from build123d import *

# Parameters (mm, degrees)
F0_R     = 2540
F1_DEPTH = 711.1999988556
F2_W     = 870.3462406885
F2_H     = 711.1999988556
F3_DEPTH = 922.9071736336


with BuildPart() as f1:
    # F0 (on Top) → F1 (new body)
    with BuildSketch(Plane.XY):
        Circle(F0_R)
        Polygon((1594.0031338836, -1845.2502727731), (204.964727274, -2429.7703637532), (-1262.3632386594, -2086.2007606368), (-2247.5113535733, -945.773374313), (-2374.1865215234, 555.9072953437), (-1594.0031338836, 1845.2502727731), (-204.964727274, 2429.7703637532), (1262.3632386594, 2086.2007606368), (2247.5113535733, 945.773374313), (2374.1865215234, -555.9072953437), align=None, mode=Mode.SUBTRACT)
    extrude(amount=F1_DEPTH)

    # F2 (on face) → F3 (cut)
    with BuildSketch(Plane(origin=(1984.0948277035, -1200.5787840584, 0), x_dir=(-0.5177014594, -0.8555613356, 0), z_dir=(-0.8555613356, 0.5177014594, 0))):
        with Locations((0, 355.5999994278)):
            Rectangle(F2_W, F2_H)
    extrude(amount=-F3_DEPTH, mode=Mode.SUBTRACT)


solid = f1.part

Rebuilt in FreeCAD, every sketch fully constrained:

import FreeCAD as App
import Part
import Sketcher
Q = App.Units.Quantity


def add_polygon(sketch, points):
    """Adds a closed chain of lines whose ends are joined by coincident constraints."""
    first, n = sketch.GeometryCount, len(points)
    for a, b in zip(points, points[1:] + points[:1]):
        sketch.addGeometry(Part.LineSegment(App.Vector(*a, 0), App.Vector(*b, 0)), False)
    for i in range(n):
        sketch.addConstraint(Sketcher.Constraint("Coincident", first + i, 2, first + (i + 1) % n, 1))

doc = App.newDocument("Part")
body = doc.addObject("PartDesign::Body", "Body")

sketch1 = body.newObject("Sketcher::SketchObject", "Sketch")
sketch1.AttachmentSupport = (doc.getObject("XY_Plane"), [""])
sketch1.MapMode = "FlatFace"
sketch1.addGeometry(Part.Circle(App.Vector(0, 0, 0), App.Vector(0, 0, 1), 2540), False)
add_polygon(sketch1, [(2374, -556), (1594, -1845), (205, -2430), (-1262, -2086), (-2248, -946), (-2374, 556), (-1594, 1845), (-205, 2430), (1262, 2086), (2248, 946)])
sketch1.addConstraint([
    Sketcher.Constraint("Coincident", 0, 3, -1, 1),
    Sketcher.Constraint("Symmetric", 1, 2, 6, 2, -1, 1),
    Sketcher.Constraint("Symmetric", 2, 2, 7, 2, -1, 1),
    Sketcher.Constraint("Symmetric", 3, 2, 8, 2, -1, 1),
    Sketcher.Constraint("Symmetric", 4, 2, 9, 2, -1, 1),
    Sketcher.Constraint("Symmetric", 5, 2, 10, 2, -1, 1),
    Sketcher.Constraint("Equal", 1, 2),
    Sketcher.Constraint("Equal", 2, 3),
    Sketcher.Constraint("Equal", 3, 4),
    Sketcher.Constraint("Equal", 4, 5),
    Sketcher.Constraint("Diameter", 0, Q("200 in")),
    Sketcher.Constraint("DistanceY", 1, 2, 4, 2, 899.476898),
    Sketcher.Constraint("Distance", 1, 1507.014078),
    Sketcher.Constraint("DistanceX", 3, 2, -1, 1, 1262.363239),
    Sketcher.Constraint("DistanceY", 3, 2, -1, 1, 2086.200761),
    Sketcher.Constraint("DistanceX", 5, 2, -1, 1, 2374.186522),
    Sketcher.Constraint("DistanceY", 2, 2, 1, 2, 584.520091),
])
pad1 = body.newObject("PartDesign::Pad", "Pad")
pad1.Profile = sketch1
pad1.Length = Q("28 in")

sketch2 = body.newObject("Sketcher::SketchObject", "Sketch001")
sketch2.Placement = App.Placement(App.Vector(1984.094828, -1200.578784, 0), App.Rotation(App.Vector(-0.517701459, -0.855561336, 0), App.Vector(0, 0, 1), App.Vector(-0.855561336, 0.517701459, 0), "ZXY"))
add_polygon(sketch2, [(-435, 711), (-435, 0), (435, 0), (435, 711)])
sketch2.addConstraint([
    Sketcher.Constraint("Vertical", 0),
    Sketcher.Constraint("Horizontal", 1),
    Sketcher.Constraint("Vertical", 2),
    Sketcher.Constraint("Horizontal", 3),
    Sketcher.Constraint("Symmetric", 0, 2, 1, 2, -1, 1),
    Sketcher.Constraint("DistanceY", 0, 2, 0, 1, Q("28 in")),
    Sketcher.Constraint("DistanceX", 1, 1, 1, 2, Q("34.2656 in")),
])
pocket1 = body.newObject("PartDesign::Pocket", "Pocket")
pocket1.Profile = sketch2
pocket1.Length = 922.907174

doc.recompute()
